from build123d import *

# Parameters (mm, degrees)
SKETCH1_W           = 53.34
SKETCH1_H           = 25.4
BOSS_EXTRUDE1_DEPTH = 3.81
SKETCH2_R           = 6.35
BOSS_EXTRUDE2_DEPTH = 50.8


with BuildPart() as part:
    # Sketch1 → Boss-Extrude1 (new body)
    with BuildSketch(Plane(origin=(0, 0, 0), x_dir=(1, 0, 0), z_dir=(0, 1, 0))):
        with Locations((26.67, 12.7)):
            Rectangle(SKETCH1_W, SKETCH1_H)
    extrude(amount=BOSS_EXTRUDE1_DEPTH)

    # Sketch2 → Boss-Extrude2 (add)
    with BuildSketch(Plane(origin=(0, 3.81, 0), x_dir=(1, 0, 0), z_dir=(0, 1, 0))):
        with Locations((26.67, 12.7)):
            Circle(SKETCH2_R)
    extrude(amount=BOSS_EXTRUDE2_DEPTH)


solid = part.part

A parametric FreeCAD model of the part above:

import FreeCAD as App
import Part
import Sketcher

V = App.Vector
Q = App.Units.Quantity


def add_polygon(sketch, points):
    """Adds a closed chain of lines whose ends are joined by coincident constraints."""
    first, n = sketch.GeometryCount, len(points)
    for a, b in zip(points, points[1:] + points[:1]):
        sketch.addGeometry(Part.LineSegment(App.Vector(*a, 0), App.Vector(*b, 0)), False)
    for i in range(n):
        sketch.addConstraint(Sketcher.Constraint("Coincident", first + i, 2, first + (i + 1) % n, 1))

doc = App.newDocument("Part")
body = doc.addObject("PartDesign::Body", "Body")

# Sketch on XZ plane
sketch1 = body.newObject("Sketcher::SketchObject", "Sketch")
sketch1.AttachmentSupport = (doc.getObject("XZ_Plane"), [""])
sketch1.MapMode = "FlatFace"
add_polygon(sketch1, [(0, -25), (0, 0), (53, 0), (53, -25)])  # lines 0-3
sketch1.addConstraint(Sketcher.Constraint("Vertical", 0))
sketch1.addConstraint(Sketcher.Constraint("Horizontal", 1))
sketch1.addConstraint(Sketcher.Constraint("Vertical", 2))
sketch1.addConstraint(Sketcher.Constraint("Horizontal", 3))
sketch1.addConstraint(Sketcher.Constraint("Coincident", 0, 2, -1, 1))
sketch1.addConstraint(Sketcher.Constraint("DistanceY", 0, 1, 0, 2, Q("1 in")))
sketch1.addConstraint(Sketcher.Constraint("DistanceX", 1, 1, 1, 2, Q("2.1 in")))
pad1 = body.newObject("PartDesign::Pad", "Pad")
pad1.Profile = sketch1
pad1.Length = Q("0.15 in")
pad1.Reversed = True

# Sketch on XZ plane
sketch2 = body.newObject("Sketcher::SketchObject", "Sketch001")
sketch2.AttachmentSupport = (doc.getObject("XZ_Plane"), [""])
sketch2.MapMode = "FlatFace"
sketch2.AttachmentOffset = App.Placement(V(0, 0, -0.15 * 25.4), App.Rotation())
sketch2.addGeometry(Part.Circle(V(27, -13, 0), V(0, 0, 1), 6), False)
sketch2.addConstraint(Sketcher.Constraint("Diameter", 0, Q("0.5 in")))
sketch2.addConstraint(Sketcher.Constraint("DistanceY", 0, 3, -1, 1, Q("0.5 in")))
sketch2.addConstraint(Sketcher.Constraint("DistanceX", -1, 1, 0, 3, Q("1.05 in")))
pad2 = body.newObject("PartDesign::Pad", "Pad001")
pad2.Profile = sketch2
pad2.Length = Q("2 in")
pad2.Reversed = True

doc.recompute()
